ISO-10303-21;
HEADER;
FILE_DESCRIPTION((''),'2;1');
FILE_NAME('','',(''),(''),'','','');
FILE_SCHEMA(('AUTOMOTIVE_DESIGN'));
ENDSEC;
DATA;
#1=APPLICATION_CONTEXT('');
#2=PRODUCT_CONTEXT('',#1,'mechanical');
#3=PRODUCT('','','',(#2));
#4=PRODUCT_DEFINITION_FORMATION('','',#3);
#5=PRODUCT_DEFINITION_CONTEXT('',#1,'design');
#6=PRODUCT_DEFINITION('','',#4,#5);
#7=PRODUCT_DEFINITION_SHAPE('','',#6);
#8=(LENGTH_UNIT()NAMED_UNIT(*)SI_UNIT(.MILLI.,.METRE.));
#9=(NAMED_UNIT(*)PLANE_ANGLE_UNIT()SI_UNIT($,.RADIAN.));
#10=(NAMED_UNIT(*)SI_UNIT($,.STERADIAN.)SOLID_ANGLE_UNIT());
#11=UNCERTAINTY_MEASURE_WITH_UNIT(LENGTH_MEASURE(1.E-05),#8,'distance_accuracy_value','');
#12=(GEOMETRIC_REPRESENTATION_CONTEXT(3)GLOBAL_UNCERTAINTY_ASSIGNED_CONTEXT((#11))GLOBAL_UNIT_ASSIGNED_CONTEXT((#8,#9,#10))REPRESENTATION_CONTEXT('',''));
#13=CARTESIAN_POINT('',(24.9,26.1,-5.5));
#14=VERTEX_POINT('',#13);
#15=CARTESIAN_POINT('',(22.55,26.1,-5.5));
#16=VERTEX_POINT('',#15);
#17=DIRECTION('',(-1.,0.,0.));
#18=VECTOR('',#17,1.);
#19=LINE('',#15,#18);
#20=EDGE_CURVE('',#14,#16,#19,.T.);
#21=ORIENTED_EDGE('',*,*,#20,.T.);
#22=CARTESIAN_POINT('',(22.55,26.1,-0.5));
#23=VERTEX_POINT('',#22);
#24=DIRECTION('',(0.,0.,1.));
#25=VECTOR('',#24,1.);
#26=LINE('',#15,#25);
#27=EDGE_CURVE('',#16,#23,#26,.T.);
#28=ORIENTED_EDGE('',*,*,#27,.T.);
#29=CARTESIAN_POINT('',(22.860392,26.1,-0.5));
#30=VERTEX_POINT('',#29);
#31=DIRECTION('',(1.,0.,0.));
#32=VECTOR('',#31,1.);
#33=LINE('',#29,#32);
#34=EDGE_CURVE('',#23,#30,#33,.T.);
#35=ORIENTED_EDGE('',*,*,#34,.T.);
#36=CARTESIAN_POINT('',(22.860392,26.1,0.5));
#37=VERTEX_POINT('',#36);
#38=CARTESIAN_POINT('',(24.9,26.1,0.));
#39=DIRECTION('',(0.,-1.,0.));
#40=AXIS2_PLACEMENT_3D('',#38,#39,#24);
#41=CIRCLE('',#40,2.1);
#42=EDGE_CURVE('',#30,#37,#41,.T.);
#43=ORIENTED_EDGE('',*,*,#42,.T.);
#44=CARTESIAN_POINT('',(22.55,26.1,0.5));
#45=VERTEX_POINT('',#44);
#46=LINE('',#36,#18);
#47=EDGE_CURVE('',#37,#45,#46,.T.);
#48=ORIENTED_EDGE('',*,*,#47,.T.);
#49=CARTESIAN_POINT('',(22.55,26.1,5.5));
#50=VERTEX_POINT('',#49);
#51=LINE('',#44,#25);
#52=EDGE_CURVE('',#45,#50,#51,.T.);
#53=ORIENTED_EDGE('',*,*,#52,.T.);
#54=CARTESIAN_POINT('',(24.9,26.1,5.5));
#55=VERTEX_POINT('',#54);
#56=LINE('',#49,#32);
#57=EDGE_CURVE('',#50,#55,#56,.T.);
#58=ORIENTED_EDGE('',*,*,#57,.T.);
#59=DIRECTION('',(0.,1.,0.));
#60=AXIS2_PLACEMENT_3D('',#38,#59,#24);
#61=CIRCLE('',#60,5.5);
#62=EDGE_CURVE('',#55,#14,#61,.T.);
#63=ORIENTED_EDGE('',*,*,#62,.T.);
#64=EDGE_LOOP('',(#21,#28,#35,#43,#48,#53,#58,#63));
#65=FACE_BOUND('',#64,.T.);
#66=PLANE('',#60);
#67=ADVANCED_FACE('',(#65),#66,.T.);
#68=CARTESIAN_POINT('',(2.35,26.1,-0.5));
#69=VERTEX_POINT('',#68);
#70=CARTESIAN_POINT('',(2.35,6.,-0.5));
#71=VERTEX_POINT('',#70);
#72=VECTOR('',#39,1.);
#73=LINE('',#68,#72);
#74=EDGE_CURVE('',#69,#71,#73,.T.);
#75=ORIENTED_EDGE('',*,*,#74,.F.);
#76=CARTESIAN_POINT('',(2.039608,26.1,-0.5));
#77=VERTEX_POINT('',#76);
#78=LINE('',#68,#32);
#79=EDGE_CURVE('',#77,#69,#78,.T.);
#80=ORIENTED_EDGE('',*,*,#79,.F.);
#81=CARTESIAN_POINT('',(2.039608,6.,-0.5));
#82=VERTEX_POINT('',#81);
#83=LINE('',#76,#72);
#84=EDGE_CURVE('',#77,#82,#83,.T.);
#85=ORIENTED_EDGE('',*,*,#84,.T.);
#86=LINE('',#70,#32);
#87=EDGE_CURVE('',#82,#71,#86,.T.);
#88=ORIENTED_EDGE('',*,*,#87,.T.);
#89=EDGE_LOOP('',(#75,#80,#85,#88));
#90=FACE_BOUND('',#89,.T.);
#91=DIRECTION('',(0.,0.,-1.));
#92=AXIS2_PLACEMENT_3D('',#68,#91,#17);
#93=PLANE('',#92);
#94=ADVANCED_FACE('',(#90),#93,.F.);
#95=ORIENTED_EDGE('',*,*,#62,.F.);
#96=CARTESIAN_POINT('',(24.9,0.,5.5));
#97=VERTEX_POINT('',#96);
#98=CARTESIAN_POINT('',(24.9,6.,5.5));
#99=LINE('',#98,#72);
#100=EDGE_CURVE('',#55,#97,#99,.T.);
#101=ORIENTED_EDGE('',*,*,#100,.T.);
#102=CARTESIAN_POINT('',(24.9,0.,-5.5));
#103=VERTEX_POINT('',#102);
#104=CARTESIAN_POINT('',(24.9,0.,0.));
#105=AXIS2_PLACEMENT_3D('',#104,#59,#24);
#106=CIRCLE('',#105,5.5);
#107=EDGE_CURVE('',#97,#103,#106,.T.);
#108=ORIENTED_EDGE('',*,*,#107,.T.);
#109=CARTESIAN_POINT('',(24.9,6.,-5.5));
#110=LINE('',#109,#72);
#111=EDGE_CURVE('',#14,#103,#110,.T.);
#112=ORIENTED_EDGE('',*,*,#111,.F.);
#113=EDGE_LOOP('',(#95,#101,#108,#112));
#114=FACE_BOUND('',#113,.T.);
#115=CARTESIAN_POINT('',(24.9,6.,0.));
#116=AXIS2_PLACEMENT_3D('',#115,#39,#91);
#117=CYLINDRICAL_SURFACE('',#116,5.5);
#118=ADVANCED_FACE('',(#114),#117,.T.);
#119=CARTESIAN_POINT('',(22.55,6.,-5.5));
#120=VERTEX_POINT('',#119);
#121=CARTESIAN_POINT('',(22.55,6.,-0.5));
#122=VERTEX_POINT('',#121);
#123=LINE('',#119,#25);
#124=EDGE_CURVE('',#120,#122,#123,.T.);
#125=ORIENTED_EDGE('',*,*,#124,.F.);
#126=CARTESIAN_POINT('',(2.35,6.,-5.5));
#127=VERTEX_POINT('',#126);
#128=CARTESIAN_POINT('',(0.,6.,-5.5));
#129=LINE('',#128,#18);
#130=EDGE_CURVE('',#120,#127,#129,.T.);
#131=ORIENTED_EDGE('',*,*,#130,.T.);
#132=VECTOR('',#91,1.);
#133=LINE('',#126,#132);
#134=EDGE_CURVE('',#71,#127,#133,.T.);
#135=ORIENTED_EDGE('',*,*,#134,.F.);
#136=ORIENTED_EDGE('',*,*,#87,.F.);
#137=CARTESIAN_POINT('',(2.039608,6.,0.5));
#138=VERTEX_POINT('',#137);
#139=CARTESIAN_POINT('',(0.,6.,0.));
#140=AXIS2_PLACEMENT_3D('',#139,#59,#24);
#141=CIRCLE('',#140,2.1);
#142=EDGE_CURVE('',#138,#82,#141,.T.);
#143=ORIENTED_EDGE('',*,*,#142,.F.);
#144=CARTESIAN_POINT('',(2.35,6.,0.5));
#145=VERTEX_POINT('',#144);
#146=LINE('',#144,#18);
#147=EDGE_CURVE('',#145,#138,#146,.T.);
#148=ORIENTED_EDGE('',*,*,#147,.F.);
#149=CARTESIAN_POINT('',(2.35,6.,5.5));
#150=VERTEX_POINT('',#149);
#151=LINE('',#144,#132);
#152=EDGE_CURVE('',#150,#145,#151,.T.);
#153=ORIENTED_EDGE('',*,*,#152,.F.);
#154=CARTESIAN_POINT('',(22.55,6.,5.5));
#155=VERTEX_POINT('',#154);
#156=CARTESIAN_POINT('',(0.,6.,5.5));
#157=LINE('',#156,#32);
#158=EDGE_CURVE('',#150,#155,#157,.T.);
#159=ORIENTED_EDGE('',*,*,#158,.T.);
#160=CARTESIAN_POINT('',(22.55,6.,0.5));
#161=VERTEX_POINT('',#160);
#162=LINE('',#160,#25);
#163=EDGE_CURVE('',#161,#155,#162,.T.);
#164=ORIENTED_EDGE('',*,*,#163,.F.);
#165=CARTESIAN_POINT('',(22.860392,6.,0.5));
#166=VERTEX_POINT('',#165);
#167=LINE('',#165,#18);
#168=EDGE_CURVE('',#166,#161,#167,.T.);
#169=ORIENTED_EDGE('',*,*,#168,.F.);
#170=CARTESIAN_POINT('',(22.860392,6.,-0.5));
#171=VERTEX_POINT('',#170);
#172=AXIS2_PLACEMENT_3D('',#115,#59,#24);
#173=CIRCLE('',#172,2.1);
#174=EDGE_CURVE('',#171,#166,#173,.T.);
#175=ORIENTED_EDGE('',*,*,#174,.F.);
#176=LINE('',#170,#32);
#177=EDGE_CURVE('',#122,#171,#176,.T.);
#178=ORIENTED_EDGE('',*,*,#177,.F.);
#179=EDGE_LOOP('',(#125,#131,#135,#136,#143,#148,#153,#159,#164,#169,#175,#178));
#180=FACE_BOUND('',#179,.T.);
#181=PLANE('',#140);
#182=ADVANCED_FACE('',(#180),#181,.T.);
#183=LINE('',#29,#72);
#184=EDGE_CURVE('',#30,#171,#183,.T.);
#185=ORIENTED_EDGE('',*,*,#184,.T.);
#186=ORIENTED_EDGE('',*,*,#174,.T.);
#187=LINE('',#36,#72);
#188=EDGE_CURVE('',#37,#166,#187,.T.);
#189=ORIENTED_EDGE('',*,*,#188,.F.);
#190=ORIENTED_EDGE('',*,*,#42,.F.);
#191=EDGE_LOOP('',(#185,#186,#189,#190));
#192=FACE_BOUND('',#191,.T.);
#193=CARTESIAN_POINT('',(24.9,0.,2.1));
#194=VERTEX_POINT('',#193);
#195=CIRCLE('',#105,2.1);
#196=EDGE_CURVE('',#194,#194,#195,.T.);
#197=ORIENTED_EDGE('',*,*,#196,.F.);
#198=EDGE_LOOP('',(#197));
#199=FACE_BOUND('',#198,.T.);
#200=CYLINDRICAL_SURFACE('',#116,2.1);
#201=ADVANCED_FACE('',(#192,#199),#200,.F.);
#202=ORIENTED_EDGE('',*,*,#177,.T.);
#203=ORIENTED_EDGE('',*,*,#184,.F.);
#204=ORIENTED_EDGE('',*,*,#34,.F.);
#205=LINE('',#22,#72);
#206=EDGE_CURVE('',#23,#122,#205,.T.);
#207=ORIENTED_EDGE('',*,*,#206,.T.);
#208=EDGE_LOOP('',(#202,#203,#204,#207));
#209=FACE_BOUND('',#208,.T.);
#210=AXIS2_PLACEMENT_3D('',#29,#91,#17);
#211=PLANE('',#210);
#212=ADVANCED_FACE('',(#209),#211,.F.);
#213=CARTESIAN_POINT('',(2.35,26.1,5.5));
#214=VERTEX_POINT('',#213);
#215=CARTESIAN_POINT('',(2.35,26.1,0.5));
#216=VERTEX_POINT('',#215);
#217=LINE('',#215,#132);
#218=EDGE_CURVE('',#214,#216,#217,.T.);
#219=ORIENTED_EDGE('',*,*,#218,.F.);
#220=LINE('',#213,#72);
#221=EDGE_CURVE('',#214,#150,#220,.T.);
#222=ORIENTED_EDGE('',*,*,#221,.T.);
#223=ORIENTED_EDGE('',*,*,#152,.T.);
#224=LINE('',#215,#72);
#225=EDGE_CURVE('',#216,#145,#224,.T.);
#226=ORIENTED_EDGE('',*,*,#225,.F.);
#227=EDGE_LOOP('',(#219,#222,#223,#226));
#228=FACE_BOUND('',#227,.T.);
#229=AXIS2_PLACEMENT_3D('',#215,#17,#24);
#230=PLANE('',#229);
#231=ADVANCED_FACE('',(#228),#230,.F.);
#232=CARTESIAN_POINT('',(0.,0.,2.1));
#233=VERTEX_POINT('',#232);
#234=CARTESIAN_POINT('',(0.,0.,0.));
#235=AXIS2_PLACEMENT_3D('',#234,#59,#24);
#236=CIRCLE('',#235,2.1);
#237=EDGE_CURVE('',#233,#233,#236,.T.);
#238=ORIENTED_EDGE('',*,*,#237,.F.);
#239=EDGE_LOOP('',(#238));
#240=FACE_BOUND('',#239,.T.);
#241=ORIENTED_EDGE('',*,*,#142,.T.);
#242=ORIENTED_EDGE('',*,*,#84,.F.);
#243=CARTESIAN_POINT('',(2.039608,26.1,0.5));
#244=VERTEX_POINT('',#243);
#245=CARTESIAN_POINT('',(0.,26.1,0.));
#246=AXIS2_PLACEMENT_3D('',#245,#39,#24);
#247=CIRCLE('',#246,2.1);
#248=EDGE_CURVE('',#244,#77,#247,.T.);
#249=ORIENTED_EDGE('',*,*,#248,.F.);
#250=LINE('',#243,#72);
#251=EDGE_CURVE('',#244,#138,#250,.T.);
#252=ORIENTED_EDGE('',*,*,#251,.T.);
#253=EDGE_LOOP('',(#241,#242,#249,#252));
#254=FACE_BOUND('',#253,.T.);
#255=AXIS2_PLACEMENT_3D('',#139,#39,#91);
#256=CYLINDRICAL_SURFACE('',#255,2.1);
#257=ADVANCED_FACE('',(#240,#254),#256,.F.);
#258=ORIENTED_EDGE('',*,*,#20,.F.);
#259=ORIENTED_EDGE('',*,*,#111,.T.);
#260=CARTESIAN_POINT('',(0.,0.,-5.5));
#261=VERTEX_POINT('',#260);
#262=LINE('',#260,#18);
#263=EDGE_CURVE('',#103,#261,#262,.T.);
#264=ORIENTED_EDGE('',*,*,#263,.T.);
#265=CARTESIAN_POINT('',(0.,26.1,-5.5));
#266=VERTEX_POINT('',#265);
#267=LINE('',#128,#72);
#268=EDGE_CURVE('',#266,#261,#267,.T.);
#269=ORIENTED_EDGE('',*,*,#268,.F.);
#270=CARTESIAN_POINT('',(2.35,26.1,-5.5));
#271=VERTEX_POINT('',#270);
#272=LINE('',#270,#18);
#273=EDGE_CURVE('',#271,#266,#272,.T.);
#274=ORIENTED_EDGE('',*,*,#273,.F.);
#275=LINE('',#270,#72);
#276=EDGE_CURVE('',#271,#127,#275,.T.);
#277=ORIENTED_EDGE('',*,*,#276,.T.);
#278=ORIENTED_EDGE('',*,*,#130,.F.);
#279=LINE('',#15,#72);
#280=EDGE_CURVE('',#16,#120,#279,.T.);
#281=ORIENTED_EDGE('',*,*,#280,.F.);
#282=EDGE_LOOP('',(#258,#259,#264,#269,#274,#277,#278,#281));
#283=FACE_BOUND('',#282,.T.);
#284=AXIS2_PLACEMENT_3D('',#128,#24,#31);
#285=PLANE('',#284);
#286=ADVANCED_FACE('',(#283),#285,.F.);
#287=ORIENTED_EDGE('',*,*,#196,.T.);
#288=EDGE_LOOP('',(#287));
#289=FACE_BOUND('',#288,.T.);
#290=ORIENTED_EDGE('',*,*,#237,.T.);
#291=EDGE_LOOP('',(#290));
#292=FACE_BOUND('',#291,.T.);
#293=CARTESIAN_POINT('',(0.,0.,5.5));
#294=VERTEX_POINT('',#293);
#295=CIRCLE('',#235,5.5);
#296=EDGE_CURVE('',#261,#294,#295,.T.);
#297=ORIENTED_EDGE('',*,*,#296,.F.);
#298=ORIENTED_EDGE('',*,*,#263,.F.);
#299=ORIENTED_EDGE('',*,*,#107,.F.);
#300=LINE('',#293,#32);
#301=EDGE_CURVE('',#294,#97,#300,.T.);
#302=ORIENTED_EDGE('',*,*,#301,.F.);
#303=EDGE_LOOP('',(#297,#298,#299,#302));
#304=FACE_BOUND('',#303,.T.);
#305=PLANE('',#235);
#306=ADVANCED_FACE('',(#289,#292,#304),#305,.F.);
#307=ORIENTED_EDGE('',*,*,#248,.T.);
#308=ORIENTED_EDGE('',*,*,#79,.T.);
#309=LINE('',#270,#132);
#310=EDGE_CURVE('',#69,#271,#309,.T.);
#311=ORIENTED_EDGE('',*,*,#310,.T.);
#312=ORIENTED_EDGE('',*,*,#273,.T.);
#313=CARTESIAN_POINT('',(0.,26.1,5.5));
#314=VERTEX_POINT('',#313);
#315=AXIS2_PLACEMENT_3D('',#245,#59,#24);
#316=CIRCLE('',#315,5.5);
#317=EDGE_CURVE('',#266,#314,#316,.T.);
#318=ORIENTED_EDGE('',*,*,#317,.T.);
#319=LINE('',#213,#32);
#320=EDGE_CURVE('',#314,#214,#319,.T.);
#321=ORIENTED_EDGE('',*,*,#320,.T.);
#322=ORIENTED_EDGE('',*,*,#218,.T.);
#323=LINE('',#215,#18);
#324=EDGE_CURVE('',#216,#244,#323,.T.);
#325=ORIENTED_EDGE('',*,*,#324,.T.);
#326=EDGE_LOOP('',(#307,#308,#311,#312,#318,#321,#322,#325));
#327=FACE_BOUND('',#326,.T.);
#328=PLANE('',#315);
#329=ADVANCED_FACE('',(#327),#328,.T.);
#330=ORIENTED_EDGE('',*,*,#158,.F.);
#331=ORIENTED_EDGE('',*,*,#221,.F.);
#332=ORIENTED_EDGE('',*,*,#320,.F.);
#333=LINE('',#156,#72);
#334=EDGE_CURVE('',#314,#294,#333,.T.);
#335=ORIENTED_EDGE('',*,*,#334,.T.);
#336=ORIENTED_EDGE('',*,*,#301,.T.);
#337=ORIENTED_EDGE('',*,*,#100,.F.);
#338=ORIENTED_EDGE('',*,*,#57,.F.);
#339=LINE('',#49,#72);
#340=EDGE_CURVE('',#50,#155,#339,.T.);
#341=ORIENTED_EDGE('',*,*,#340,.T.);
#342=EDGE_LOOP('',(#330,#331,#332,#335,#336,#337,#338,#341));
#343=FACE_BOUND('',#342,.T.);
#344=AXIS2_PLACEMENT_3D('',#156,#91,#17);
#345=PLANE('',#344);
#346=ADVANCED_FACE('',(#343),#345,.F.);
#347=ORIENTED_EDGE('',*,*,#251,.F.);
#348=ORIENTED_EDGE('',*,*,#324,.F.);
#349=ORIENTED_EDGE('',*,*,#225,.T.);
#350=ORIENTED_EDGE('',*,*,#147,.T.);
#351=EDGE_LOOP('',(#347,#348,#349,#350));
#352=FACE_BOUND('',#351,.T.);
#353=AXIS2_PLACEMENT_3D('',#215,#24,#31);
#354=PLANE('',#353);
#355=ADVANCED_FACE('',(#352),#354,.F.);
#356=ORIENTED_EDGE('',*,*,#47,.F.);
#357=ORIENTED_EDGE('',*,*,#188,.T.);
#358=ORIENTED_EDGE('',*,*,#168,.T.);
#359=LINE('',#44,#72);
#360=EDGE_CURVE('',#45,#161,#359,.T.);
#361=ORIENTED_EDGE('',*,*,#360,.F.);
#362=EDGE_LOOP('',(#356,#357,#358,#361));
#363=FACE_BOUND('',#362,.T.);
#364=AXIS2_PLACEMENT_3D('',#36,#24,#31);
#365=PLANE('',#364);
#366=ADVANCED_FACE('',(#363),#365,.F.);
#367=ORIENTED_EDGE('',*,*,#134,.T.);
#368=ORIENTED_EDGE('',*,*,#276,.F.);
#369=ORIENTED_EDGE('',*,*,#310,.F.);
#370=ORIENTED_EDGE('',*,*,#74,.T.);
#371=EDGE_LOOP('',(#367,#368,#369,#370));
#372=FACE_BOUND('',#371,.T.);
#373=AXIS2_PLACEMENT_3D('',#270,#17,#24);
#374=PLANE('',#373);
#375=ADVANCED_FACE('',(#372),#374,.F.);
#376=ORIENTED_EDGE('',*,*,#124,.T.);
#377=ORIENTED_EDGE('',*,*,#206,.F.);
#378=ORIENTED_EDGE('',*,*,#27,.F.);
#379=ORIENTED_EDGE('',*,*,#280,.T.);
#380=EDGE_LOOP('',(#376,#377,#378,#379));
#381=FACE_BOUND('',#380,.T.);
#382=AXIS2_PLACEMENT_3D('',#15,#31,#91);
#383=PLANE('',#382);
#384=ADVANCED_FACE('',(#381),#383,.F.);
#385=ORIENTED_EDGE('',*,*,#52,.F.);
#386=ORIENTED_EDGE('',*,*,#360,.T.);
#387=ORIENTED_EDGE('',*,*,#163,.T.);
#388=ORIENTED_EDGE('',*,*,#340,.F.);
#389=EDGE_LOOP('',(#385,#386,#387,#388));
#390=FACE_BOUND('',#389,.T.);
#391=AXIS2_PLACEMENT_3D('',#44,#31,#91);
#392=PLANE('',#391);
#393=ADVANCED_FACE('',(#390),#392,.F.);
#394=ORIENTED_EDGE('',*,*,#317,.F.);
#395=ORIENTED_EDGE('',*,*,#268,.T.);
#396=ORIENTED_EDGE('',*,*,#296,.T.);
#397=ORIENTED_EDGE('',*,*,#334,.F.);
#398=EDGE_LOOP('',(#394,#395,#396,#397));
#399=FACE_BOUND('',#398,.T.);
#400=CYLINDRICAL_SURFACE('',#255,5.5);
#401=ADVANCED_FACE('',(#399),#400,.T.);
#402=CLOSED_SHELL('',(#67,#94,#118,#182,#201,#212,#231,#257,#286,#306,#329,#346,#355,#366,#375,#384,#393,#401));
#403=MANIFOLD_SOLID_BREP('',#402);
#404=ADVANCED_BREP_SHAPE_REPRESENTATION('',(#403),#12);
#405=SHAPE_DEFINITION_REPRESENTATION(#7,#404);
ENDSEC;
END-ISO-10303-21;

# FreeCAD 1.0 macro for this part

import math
import FreeCAD as App
import Part
import Sketcher
Q = App.Units.Quantity

doc = App.newDocument("Part")
body = doc.addObject("PartDesign::Body", "Body")

sketch1 = body.newObject("Sketcher::SketchObject", "Sketch")
sketch1.AttachmentSupport = (doc.getObject("XZ_Plane"), [""])
sketch1.MapMode = "FlatFace"
sketch1.addGeometry(Part.LineSegment(App.Vector(24.9, -5.5, 0), App.Vector(0, -5.5, 0)), False)
sketch1.addGeometry(Part.ArcOfCircle(Part.Circle(App.Vector(0, 0, 0), App.Vector(0, 0, 1), 5.5), math.radians(90), math.radians(270)), False)
sketch1.addGeometry(Part.LineSegment(App.Vector(0, 5.5, 0), App.Vector(24.9, 5.5, 0)), False)
sketch1.addGeometry(Part.ArcOfCircle(Part.Circle(App.Vector(24.9, 0, 0), App.Vector(0, 0, 1), 5.5), math.radians(-90), math.radians(90)), False)
sketch1.addGeometry(Part.Circle(App.Vector(24.9, 0, 0), App.Vector(0, 0, 1), 2.1), False)
sketch1.addGeometry(Part.Circle(App.Vector(0, 0, 0), App.Vector(0, 0, 1), 2.1), False)
sketch1.addConstraint(Sketcher.Constraint("Tangent", 0, 2, 1, 2))
sketch1.addConstraint(Sketcher.Constraint("Tangent", 1, 1, 2, 1))
sketch1.addConstraint(Sketcher.Constraint("Tangent", 2, 2, 3, 2))
sketch1.addConstraint(Sketcher.Constraint("Tangent", 3, 1, 0, 1))
sketch1.addConstraint(Sketcher.Constraint("Horizontal", 0))
sketch1.addConstraint(Sketcher.Constraint("Horizontal", 2))
sketch1.addConstraint(Sketcher.Constraint("Coincident", 1, 3, -1, 1))
sketch1.addConstraint(Sketcher.Constraint("Coincident", 5, 3, -1, 1))
sketch1.addConstraint(Sketcher.Constraint("Coincident", 4, 3, 3, 3))
sketch1.addConstraint(Sketcher.Constraint("Equal", 4, 5))
sketch1.addConstraint(Sketcher.Constraint("Diameter", 4, Q("4.2 mm")))
sketch1.addConstraint(Sketcher.Constraint("Radius", 1, Q("5.5 mm")))
sketch1.addConstraint(Sketcher.Constraint("DistanceX", 0, 2, 0, 1, Q("24.9 mm")))
pad1 = body.newObject("PartDesign::Pad", "Pad")
pad1.Profile = sketch1
pad1.Length = 6
pad1.Reversed = True

sketch2 = body.newObject("Sketcher::SketchObject", "Sketch001")
sketch2.AttachmentSupport = (doc.getObject("XZ_Plane"), [""])
sketch2.MapMode = "FlatFace"
sketch2.AttachmentOffset = App.Placement(App.Vector(0, 0, -6), App.Rotation())
sketch2.addGeometry(Part.LineSegment(App.Vector(22.55, -5.5, 0), App.Vector(22.55, -0.5, 0)), False)
sketch2.addGeometry(Part.LineSegment(App.Vector(22.55, -0.5, 0), App.Vector(22.86, -0.5, 0)), False)
sketch2.addGeometry(Part.ArcOfCircle(Part.Circle(App.Vector(24.9, 0, 0), App.Vector(0, 0, 1), 2.1), math.radians(-166), math.radians(166)), False)
sketch2.addGeometry(Part.LineSegment(App.Vector(22.86, 0.5, 0), App.Vector(22.55, 0.5, 0)), False)
sketch2.addGeometry(Part.LineSegment(App.Vector(22.55, 0.5, 0), App.Vector(22.55, 5.5, 0)), False)
sketch2.addGeometry(Part.LineSegment(App.Vector(22.55, 5.5, 0), App.Vector(24.9, 5.5, 0)), False)
sketch2.addGeometry(Part.ArcOfCircle(Part.Circle(App.Vector(24.9, 0, 0), App.Vector(0, 0, 1), 5.5), math.radians(-90), math.radians(90)), False)
sketch2.addGeometry(Part.LineSegment(App.Vector(24.9, -5.5, 0), App.Vector(22.55, -5.5, 0)), False)
sketch2.addGeometry(Part.LineSegment(App.Vector(2.35, -0.5, 0), App.Vector(2.35, -5.5, 0)), False)
sketch2.addGeometry(Part.LineSegment(App.Vector(2.35, -5.5, 0), App.Vector(0, -5.5, 0)), False)
sketch2.addGeometry(Part.ArcOfCircle(Part.Circle(App.Vector(0, 0, 0), App.Vector(0, 0, 1), 5.5), math.radians(90), math.radians(270)), False)
sketch2.addGeometry(Part.LineSegment(App.Vector(0, 5.5, 0), App.Vector(2.35, 5.5, 0)), False)
sketch2.addGeometry(Part.LineSegment(App.Vector(2.35, 5.5, 0), App.Vector(2.35, 0.5, 0)), False)
sketch2.addGeometry(Part.LineSegment(App.Vector(2.35, 0.5, 0), App.Vector(2.04, 0.5, 0)), False)
sketch2.addGeometry(Part.ArcOfCircle(Part.Circle(App.Vector(0, 0, 0), App.Vector(0, 0, 1), 2.1), math.radians(14), math.radians(346)), False)
sketch2.addGeometry(Part.LineSegment(App.Vector(2.04, -0.5, 0), App.Vector(2.35, -0.5, 0)), False)
sketch2.addConstraint(Sketcher.Constraint("Coincident", 0, 2, 1, 1))
sketch2.addConstraint(Sketcher.Constraint("Coincident", 1, 2, 2, 1))
sketch2.addConstraint(Sketcher.Constraint("Coincident", 2, 2, 3, 1))
sketch2.addConstraint(Sketcher.Constraint("Coincident", 3, 2, 4, 1))
sketch2.addConstraint(Sketcher.Constraint("Coincident", 4, 2, 5, 1))
sketch2.addConstraint(Sketcher.Constraint("Tangent", 5, 2, 6, 2))
sketch2.addConstraint(Sketcher.Constraint("Tangent", 6, 1, 7, 1))
sketch2.addConstraint(Sketcher.Constraint("Coincident", 7, 2, 0, 1))
sketch2.addConstraint(Sketcher.Constraint("Coincident", 8, 2, 9, 1))
sketch2.addConstraint(Sketcher.Constraint("Tangent", 9, 2, 10, 2))
sketch2.addConstraint(Sketcher.Constraint("Tangent", 10, 1, 11, 1))
sketch2.addConstraint(Sketcher.Constraint("Coincident", 11, 2, 12, 1))
sketch2.addConstraint(Sketcher.Constraint("Coincident", 12, 2, 13, 1))
sketch2.addConstraint(Sketcher.Constraint("Coincident", 13, 2, 14, 1))
sketch2.addConstraint(Sketcher.Constraint("Coincident", 14, 2, 15, 1))
sketch2.addConstraint(Sketcher.Constraint("Coincident", 15, 2, 8, 1))
sketch2.addConstraint(Sketcher.Constraint("Vertical", 0))
sketch2.addConstraint(Sketcher.Constraint("Horizontal", 1))
sketch2.addConstraint(Sketcher.Constraint("Horizontal", 3))
sketch2.addConstraint(Sketcher.Constraint("Vertical", 4))
sketch2.addConstraint(Sketcher.Constraint("Horizontal", 5))
sketch2.addConstraint(Sketcher.Constraint("Horizontal", 7))
sketch2.addConstraint(Sketcher.Constraint("Vertical", 8))
sketch2.addConstraint(Sketcher.Constraint("Horizontal", 9))
sketch2.addConstraint(Sketcher.Constraint("Horizontal", 11))
sketch2.addConstraint(Sketcher.Constraint("Vertical", 12))
sketch2.addConstraint(Sketcher.Constraint("Horizontal", 13))
sketch2.addConstraint(Sketcher.Constraint("Horizontal", 15))
sketch2.addConstraint(Sketcher.Constraint("Coincident", 10, 3, -1, 1))
sketch2.addConstraint(Sketcher.Constraint("Coincident", 14, 3, -1, 1))
sketch2.addConstraint(Sketcher.Constraint("Coincident", 6, 3, 2, 3))
sketch2.addConstraint(Sketcher.Constraint("Equal", 6, 10))
sketch2.addConstraint(Sketcher.Constraint("Equal", 2, 14))
sketch2.addConstraint(Sketcher.Constraint("Symmetric", 1, 2, 2, 2, -1))
sketch2.addConstraint(Sketcher.Constraint("Symmetric", 12, 2, 15, 2, -1))
sketch2.addConstraint(Sketcher.Constraint("Horizontal", 3, 2, 12, 2))
sketch2.addConstraint(Sketcher.Constraint("Vertical", 0, 2, 3, 2))
sketch2.addConstraint(Sketcher.Constraint("Equal", 7, 9))
sketch2.addConstraint(Sketcher.Constraint("Radius", 2, Q("2.1 mm")))
sketch2.addConstraint(Sketcher.Constraint("Radius", 6, Q("5.5 mm")))
sketch2.addConstraint(Sketcher.Constraint("DistanceY", 0, 1, 0, 2, Q("5 mm")))
sketch2.addConstraint(Sketcher.Constraint("DistanceX", 5, 1, 5, 2, Q("2.35 mm")))
sketch2.addConstraint(Sketcher.Constraint("DistanceX", -1, 1, 2, 3, Q("24.9 mm")))
pad2 = body.newObject("PartDesign::Pad", "Pad001")
pad2.Profile = sketch2
pad2.Length = 20.1
pad2.Reversed = True

doc.recompute()
